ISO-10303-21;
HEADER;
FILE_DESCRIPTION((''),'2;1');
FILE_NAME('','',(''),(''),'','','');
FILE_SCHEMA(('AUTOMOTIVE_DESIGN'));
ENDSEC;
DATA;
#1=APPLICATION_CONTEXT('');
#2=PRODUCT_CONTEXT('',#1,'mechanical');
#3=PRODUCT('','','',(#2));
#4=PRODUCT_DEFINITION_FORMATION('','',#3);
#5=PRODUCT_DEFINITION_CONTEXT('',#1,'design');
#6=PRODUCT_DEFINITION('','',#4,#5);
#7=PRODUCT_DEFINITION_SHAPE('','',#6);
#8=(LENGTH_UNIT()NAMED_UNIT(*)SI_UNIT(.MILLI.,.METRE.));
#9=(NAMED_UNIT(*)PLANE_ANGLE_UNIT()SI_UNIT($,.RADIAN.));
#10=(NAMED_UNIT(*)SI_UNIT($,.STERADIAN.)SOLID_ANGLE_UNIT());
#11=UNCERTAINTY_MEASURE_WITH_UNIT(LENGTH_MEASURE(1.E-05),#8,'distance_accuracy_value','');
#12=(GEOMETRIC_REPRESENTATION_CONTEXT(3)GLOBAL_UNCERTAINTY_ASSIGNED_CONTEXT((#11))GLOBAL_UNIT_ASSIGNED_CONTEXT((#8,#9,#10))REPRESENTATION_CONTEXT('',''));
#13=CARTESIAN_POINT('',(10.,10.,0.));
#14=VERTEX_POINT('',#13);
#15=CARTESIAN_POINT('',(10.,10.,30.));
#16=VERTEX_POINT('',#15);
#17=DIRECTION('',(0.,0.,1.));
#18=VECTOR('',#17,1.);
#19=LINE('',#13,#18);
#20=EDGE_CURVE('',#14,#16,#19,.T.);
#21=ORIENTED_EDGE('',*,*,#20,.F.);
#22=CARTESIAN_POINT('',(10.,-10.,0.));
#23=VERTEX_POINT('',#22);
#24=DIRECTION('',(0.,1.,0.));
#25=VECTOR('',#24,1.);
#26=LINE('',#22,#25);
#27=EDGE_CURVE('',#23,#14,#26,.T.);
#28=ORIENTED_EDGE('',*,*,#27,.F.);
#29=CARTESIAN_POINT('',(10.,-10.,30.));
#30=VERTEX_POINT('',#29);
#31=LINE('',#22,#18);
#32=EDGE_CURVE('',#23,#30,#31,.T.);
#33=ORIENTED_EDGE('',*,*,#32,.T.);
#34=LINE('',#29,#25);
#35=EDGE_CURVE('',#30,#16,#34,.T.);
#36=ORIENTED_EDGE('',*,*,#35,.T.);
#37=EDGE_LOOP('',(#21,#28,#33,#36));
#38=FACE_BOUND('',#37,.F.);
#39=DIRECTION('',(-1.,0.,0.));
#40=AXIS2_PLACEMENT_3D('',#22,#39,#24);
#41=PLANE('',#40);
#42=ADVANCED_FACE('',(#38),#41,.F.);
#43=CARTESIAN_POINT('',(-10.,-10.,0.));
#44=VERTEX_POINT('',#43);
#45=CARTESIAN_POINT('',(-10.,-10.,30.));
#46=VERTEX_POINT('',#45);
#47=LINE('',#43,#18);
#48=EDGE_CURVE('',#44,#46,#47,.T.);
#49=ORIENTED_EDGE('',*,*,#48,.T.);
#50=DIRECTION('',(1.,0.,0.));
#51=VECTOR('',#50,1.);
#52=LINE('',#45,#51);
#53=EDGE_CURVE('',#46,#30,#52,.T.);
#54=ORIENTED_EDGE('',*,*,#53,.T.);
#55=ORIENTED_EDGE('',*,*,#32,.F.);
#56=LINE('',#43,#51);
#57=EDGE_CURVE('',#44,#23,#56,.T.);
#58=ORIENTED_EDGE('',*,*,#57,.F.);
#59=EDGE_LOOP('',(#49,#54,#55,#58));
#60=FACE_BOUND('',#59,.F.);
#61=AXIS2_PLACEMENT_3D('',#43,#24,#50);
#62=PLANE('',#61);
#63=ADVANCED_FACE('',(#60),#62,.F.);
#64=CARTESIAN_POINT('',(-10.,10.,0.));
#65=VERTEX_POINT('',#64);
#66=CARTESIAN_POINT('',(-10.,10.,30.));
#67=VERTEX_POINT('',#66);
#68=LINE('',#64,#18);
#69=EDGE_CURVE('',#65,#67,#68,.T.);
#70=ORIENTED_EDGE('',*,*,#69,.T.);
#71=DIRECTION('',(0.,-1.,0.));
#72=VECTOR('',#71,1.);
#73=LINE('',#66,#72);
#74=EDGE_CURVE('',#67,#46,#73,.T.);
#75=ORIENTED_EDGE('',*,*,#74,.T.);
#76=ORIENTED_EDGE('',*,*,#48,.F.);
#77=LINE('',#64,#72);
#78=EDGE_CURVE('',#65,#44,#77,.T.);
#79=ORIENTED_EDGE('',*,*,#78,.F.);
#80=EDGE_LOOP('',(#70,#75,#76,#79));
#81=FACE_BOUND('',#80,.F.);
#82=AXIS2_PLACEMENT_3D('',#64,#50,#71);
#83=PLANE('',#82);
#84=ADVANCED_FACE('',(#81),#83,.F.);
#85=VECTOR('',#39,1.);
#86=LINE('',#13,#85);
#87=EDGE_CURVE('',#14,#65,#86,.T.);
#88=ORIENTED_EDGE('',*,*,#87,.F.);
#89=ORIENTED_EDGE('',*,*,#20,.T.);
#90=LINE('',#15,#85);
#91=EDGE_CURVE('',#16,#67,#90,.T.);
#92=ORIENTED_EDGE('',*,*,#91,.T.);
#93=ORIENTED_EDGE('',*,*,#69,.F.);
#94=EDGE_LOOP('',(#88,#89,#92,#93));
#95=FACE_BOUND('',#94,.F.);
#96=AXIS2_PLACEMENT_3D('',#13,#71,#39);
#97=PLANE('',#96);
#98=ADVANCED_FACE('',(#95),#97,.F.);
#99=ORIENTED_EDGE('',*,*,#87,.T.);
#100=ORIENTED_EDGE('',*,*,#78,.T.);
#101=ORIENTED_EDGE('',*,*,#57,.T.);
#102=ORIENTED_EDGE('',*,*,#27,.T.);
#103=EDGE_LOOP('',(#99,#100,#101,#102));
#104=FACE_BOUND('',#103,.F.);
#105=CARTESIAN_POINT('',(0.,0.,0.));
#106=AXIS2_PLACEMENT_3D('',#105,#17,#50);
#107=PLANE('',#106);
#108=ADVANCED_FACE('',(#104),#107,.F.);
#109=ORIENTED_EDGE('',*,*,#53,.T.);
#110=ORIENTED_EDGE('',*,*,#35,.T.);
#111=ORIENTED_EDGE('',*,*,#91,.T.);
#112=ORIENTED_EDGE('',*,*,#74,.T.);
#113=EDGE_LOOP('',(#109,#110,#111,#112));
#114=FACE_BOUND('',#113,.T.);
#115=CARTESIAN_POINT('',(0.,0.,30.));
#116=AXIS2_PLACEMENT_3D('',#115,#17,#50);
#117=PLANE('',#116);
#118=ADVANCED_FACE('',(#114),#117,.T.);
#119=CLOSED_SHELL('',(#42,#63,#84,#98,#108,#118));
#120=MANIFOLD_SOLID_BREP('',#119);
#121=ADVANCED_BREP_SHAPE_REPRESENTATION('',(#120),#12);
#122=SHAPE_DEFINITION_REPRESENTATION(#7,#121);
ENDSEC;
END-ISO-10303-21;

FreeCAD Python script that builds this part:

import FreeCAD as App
import Part
import Sketcher
from FreeCAD import Vector


def add_polygon(sketch, points):
    """Adds a closed chain of lines whose ends are joined by coincident constraints."""
    first, n = sketch.GeometryCount, len(points)
    for a, b in zip(points, points[1:] + points[:1]):
        sketch.addGeometry(Part.LineSegment(App.Vector(*a, 0), App.Vector(*b, 0)), False)
    for i in range(n):
        sketch.addConstraint(Sketcher.Constraint("Coincident", first + i, 2, first + (i + 1) % n, 1))

doc = App.newDocument("Part")
body = doc.addObject("PartDesign::Body", "Body")

# Sketch on XY plane
sketch1 = doc.addObject("Sketcher::SketchObject", "Sketch")
body.addObject(sketch1)
sketch1.AttachmentSupport = (doc.XY_Plane, [""])
sketch1.MapMode = "FlatFace"
add_polygon(sketch1, [(-10, 10), (-10, -10), (10, -10), (10, 10)])  # lines 0-3
sketch1.addConstraint(Sketcher.Constraint("Vertical", 0))
sketch1.addConstraint(Sketcher.Constraint("Horizontal", 1))
sketch1.addConstraint(Sketcher.Constraint("Vertical", 2))
sketch1.addConstraint(Sketcher.Constraint("Horizontal", 3))
sketch1.addConstraint(Sketcher.Constraint("Symmetric", 0, 2, 2, 2, -1, 1))
sketch1.addConstraint(Sketcher.Constraint("Equal", 3, 0))
sketch1.addConstraint(Sketcher.Constraint("DistanceX", 1, 1, 1, 2, 20.0))
pad1 = doc.addObject("PartDesign::Pad", "Pad")
body.addObject(pad1)
pad1.Profile = sketch1
pad1.Length = 30

doc.recompute()
